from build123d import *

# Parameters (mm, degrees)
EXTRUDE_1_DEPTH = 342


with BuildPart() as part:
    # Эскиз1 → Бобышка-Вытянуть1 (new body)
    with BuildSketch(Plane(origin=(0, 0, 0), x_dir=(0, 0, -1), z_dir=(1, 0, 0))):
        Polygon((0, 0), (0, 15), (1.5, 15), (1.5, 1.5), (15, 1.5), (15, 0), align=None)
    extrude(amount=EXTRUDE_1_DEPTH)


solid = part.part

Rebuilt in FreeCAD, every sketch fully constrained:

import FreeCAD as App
import Part
import Sketcher


def add_polygon(sketch, points):
    """Adds a closed chain of lines whose ends are joined by coincident constraints."""
    first, n = sketch.GeometryCount, len(points)
    for a, b in zip(points, points[1:] + points[:1]):
        sketch.addGeometry(Part.LineSegment(App.Vector(*a, 0), App.Vector(*b, 0)), False)
    for i in range(n):
        sketch.addConstraint(Sketcher.Constraint("Coincident", first + i, 2, first + (i + 1) % n, 1))

doc = App.newDocument("Part")
body = doc.addObject("PartDesign::Body", "Body")

# Sketch on YZ plane
sketch1 = body.newObject("Sketcher::SketchObject", "Sketch")
sketch1.AttachmentSupport = (doc.getObject("YZ_Plane"), [""])
sketch1.MapMode = "FlatFace"
add_polygon(sketch1, [(15, 0), (0, 0), (0, -15), (1.5, -15), (1.5, -1.5), (15, -1.5)])  # lines 0-5
sketch1.addConstraint(Sketcher.Constraint("Horizontal", 0))
sketch1.addConstraint(Sketcher.Constraint("Vertical", 1))
sketch1.addConstraint(Sketcher.Constraint("Horizontal", 2))
sketch1.addConstraint(Sketcher.Constraint("Vertical", 3))
sketch1.addConstraint(Sketcher.Constraint("Horizontal", 4))
sketch1.addConstraint(Sketcher.Constraint("Vertical", 5))
sketch1.addConstraint(Sketcher.Constraint("Coincident", 0, 2, -1, 1))
sketch1.addConstraint(Sketcher.Constraint("Equal", 0, 1))
sketch1.addConstraint(Sketcher.Constraint("Equal", 4, 3))
sketch1.addConstraint(Sketcher.Constraint("DistanceX", 0, 2, 0, 1, 15.0))
sketch1.addConstraint(Sketcher.Constraint("DistanceX", 2, 1, 2, 2, 1.5))
pad1 = body.newObject("PartDesign::Pad", "Pad")
pad1.Profile = sketch1
pad1.Length = 342

doc.recompute()
